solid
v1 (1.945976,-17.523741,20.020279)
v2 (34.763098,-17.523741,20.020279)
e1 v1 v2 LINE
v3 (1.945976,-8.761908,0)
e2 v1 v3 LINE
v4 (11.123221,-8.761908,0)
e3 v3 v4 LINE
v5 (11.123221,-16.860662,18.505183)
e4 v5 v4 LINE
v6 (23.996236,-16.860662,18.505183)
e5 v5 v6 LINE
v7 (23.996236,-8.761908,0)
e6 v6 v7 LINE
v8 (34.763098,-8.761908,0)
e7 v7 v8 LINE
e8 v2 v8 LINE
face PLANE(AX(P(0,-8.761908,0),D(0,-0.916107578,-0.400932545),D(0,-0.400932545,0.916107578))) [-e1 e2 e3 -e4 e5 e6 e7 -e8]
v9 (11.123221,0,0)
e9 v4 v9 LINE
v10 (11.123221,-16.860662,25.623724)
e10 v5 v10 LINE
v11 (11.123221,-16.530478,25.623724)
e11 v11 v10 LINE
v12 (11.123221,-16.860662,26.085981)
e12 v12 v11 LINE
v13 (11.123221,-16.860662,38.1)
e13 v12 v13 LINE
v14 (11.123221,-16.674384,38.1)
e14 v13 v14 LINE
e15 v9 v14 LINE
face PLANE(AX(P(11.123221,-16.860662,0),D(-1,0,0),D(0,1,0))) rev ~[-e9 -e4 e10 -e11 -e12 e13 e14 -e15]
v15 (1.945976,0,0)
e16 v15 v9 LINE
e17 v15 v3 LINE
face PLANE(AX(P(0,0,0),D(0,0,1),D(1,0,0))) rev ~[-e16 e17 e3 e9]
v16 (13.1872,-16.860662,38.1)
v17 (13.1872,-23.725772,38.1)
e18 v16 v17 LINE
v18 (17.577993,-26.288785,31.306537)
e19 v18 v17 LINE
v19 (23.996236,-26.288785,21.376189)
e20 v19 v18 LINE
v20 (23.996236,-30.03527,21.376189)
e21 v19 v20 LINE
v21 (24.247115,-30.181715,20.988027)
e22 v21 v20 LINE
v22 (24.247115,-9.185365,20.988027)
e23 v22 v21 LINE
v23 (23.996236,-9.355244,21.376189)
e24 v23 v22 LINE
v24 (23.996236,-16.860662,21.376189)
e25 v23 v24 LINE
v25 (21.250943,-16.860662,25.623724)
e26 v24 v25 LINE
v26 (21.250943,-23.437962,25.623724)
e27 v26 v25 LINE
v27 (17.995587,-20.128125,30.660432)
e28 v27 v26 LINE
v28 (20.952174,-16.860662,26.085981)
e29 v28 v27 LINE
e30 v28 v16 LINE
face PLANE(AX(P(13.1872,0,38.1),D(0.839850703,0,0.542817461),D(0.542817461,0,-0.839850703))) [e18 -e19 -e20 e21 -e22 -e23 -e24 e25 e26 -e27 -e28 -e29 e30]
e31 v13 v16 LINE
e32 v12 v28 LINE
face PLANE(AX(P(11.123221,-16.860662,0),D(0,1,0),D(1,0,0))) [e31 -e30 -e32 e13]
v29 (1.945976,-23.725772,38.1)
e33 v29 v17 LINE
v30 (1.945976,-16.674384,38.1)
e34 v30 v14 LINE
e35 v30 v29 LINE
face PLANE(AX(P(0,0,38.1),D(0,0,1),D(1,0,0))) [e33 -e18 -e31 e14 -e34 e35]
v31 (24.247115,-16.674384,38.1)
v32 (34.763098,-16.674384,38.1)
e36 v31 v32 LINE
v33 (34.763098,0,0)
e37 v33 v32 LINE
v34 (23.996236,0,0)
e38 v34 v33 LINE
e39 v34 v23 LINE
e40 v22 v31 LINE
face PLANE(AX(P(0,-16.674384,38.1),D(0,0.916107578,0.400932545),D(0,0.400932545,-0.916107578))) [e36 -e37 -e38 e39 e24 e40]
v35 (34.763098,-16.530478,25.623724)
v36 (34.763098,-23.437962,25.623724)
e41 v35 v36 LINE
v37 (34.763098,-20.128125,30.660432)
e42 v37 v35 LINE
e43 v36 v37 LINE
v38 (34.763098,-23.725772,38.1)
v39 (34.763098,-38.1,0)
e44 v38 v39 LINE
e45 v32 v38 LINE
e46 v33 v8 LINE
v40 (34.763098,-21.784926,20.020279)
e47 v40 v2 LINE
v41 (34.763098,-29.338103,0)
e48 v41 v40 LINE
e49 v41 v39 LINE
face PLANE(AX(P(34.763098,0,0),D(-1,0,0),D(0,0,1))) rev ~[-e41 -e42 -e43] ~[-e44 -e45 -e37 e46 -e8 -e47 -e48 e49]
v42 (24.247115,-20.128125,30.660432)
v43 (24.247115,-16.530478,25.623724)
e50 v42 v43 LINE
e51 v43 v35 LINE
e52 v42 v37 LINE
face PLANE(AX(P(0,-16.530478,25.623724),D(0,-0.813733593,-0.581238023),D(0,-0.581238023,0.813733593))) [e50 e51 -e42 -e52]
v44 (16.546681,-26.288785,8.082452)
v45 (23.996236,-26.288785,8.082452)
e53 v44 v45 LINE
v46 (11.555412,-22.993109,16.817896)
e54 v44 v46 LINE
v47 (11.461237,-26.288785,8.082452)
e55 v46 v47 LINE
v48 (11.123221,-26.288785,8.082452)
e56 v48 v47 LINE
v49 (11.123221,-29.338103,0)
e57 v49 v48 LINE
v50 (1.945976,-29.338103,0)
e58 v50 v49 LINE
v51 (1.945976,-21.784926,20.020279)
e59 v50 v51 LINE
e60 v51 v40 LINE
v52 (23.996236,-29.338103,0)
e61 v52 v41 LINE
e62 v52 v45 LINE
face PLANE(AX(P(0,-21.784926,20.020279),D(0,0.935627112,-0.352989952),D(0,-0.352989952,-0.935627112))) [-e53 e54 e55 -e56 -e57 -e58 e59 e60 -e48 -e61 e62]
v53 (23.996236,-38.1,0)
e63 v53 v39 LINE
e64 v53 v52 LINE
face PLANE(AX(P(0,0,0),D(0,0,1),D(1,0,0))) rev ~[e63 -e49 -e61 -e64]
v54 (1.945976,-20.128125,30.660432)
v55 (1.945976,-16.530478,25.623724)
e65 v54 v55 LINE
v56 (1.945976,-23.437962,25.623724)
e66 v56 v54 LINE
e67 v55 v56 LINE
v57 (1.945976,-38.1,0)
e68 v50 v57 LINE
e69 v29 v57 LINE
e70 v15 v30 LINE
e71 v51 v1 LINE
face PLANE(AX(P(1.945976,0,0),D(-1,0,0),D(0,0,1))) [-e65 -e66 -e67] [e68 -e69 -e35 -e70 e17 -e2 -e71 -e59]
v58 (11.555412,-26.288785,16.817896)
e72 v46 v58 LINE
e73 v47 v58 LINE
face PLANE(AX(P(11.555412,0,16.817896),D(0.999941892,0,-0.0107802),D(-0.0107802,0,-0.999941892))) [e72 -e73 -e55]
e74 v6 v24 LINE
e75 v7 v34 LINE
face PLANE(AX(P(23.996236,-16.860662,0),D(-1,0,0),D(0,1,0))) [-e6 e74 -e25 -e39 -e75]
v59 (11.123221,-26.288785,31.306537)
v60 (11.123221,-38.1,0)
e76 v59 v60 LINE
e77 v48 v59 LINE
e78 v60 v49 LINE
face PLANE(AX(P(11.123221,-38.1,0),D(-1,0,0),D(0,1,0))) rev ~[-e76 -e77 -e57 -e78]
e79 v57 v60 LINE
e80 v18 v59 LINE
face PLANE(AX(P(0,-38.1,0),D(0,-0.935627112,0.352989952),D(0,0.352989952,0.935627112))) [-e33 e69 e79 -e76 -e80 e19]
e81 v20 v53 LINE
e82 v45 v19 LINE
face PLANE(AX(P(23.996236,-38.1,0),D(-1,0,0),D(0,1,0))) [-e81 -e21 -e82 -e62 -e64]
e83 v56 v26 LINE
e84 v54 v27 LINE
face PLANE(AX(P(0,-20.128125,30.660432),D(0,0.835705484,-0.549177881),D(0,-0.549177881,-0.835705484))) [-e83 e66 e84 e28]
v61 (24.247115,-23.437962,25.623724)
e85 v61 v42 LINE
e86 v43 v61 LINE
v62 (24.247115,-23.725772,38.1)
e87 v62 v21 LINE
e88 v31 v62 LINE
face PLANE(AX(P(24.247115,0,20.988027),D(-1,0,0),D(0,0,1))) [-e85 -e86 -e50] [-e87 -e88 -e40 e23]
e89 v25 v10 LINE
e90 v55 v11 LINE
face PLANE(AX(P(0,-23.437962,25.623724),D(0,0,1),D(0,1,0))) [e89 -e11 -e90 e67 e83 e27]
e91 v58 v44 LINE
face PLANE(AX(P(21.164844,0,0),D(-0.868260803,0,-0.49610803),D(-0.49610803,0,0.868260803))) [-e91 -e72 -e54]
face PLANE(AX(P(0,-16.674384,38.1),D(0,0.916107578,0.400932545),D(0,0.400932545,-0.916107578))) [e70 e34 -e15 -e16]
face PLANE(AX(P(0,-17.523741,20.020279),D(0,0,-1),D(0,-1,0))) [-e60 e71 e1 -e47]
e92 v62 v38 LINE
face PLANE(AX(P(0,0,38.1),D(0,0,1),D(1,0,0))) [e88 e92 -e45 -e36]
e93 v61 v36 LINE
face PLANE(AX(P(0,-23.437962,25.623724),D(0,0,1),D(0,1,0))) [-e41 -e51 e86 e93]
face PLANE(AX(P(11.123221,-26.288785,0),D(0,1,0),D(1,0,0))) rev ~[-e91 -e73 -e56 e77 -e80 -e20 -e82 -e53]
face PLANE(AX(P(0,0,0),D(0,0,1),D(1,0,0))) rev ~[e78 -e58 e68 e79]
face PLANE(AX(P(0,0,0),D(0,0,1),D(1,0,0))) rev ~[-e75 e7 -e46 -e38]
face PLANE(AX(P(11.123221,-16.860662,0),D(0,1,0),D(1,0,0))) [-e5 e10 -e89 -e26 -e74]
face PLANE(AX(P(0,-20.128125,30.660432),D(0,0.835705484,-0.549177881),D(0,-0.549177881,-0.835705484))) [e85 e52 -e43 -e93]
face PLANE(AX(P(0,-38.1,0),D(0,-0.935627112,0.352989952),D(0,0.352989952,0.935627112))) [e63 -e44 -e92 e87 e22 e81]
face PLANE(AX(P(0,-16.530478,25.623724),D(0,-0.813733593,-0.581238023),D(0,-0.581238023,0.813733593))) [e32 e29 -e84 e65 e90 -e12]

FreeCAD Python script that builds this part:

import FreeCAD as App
import Part
import Sketcher

V = App.Vector
Q = App.Units.Quantity

doc = App.newDocument("Part")
params = doc.addObject("Spreadsheet::Sheet", "Params")
for row, (alias, value) in enumerate([
    ("sketch1_width", "1.5 in"),
    ("pad1_length", "1.5 in"),
    ("sketch2_height", "1.5 in"),
    ("pocket1_length", "1.5 in"),
    ("sketch3_height", "1.5 in"),
    ("pocket2_length", "1.5 in"),
    ("sketch4_height", "1.5 in"),
    ("pocket3_length", "1.5 in"),
], start=1):
    params.set(f"A{row}", alias)
    params.set(f"B{row}", "=" + value)
    params.setAlias(f"B{row}", alias)

body = doc.addObject("PartDesign::Body", "Body")

sketch1 = body.newObject("Sketcher::SketchObject", "Sketch")
sketch1.AttachmentSupport = (doc.getObject("XZ_Plane"), [""])
sketch1.MapMode = "FlatFace"
sketch1.addGeometry(Part.LineSegment(V(0, 38.1, 0), V(0, 0, 0)), False)
sketch1.addGeometry(Part.LineSegment(V(0, 0, 0), V(38.1, 0, 0)), False)
sketch1.addGeometry(Part.LineSegment(V(38.1, 0, 0), V(38.1, 38.1, 0)), False)
sketch1.addGeometry(Part.LineSegment(V(38.1, 38.1, 0), V(0, 38.1, 0)), False)
sketch1.addConstraint(Sketcher.Constraint("Coincident", 0, 2, 1, 1))
sketch1.addConstraint(Sketcher.Constraint("Coincident", 1, 2, 2, 1))
sketch1.addConstraint(Sketcher.Constraint("Coincident", 2, 2, 3, 1))
sketch1.addConstraint(Sketcher.Constraint("Coincident", 3, 2, 0, 1))
sketch1.addConstraint(Sketcher.Constraint("Vertical", 0))
sketch1.addConstraint(Sketcher.Constraint("Horizontal", 1))
sketch1.addConstraint(Sketcher.Constraint("Vertical", 2))
sketch1.addConstraint(Sketcher.Constraint("Horizontal", 3))
sketch1.addConstraint(Sketcher.Constraint("Coincident", 0, 2, -1, 1))
sketch1.addConstraint(Sketcher.Constraint("Equal", 3, 0))
sketch1.addConstraint(Sketcher.Constraint("DistanceX", 1, 1, 1, 2, Q("1.5 in")))
sketch1.setExpression("Constraints[10]", "Params.sketch1_width")
pad1 = body.newObject("PartDesign::Pad", "Pad")
pad1.Profile = sketch1
pad1.setExpression("Length", "Params.pad1_length")

sketch2 = body.newObject("Sketcher::SketchObject", "Sketch001")
sketch2.AttachmentSupport = (doc.getObject("YZ_Plane"), [""])
sketch2.MapMode = "FlatFace"
sketch2.addGeometry(Part.LineSegment(V(-38.1, 0, 0), V(-23.725772, 38.1, 0)), False)
sketch2.addGeometry(Part.LineSegment(V(-23.725772, 38.1, 0), V(-38.1, 38.1, 0)), False)
sketch2.addGeometry(Part.LineSegment(V(-38.1, 38.1, 0), V(-38.1, 0, 0)), False)
sketch2.addGeometry(Part.LineSegment(V(-29.338103, 0, 0), V(-8.761908, 0, 0)), False)
sketch2.addGeometry(Part.LineSegment(V(-8.761908, 0, 0), V(-17.523741, 20.020279, 0)), False)
sketch2.addGeometry(Part.LineSegment(V(-17.523741, 20.020279, 0), V(-21.784926, 20.020279, 0)), False)
sketch2.addGeometry(Part.LineSegment(V(-21.784926, 20.020279, 0), V(-29.338103, 0, 0)), False)
sketch2.addGeometry(Part.LineSegment(V(-16.674384, 38.1, 0), V(0, 0, 0)), False)
sketch2.addGeometry(Part.LineSegment(V(0, 0, 0), V(0, 38.1, 0)), False)
sketch2.addGeometry(Part.LineSegment(V(0, 38.1, 0), V(-16.674384, 38.1, 0)), False)
sketch2.addGeometry(Part.LineSegment(V(-23.437962, 25.623724, 0), V(-16.530478, 25.623724, 0)), False)
sketch2.addGeometry(Part.LineSegment(V(-16.530478, 25.623724, 0), V(-20.128125, 30.660432, 0)), False)
sketch2.addGeometry(Part.LineSegment(V(-20.128125, 30.660432, 0), V(-23.437962, 25.623724, 0)), False)
sketch2.addConstraint(Sketcher.Constraint("Coincident", 0, 2, 1, 1))
sketch2.addConstraint(Sketcher.Constraint("Coincident", 1, 2, 2, 1))
sketch2.addConstraint(Sketcher.Constraint("Coincident", 2, 2, 0, 1))
sketch2.addConstraint(Sketcher.Constraint("Coincident", 3, 2, 4, 1))
sketch2.addConstraint(Sketcher.Constraint("Coincident", 4, 2, 5, 1))
sketch2.addConstraint(Sketcher.Constraint("Coincident", 5, 2, 6, 1))
sketch2.addConstraint(Sketcher.Constraint("Coincident", 6, 2, 3, 1))
sketch2.addConstraint(Sketcher.Constraint("Coincident", 7, 2, 8, 1))
sketch2.addConstraint(Sketcher.Constraint("Coincident", 8, 2, 9, 1))
sketch2.addConstraint(Sketcher.Constraint("Coincident", 9, 2, 7, 1))
sketch2.addConstraint(Sketcher.Constraint("Coincident", 10, 2, 11, 1))
sketch2.addConstraint(Sketcher.Constraint("Coincident", 11, 2, 12, 1))
sketch2.addConstraint(Sketcher.Constraint("Coincident", 12, 2, 10, 1))
sketch2.addConstraint(Sketcher.Constraint("Horizontal", 1))
sketch2.addConstraint(Sketcher.Constraint("Vertical", 2))
sketch2.addConstraint(Sketcher.Constraint("Horizontal", 3))
sketch2.addConstraint(Sketcher.Constraint("Horizontal", 5))
sketch2.addConstraint(Sketcher.Constraint("Vertical", 8))
sketch2.addConstraint(Sketcher.Constraint("Horizontal", 9))
sketch2.addConstraint(Sketcher.Constraint("Horizontal", 10))
sketch2.addConstraint(Sketcher.Constraint("Coincident", 7, 2, -1, 1))
sketch2.addConstraint(Sketcher.Constraint("PointOnObject", 2, 2, -1))
sketch2.addConstraint(Sketcher.Constraint("PointOnObject", 3, 2, -1))
sketch2.addConstraint(Sketcher.Constraint("Parallel", 0, 6))
sketch2.addConstraint(Sketcher.Constraint("Parallel", 4, 7))
sketch2.addConstraint(Sketcher.Constraint("Horizontal", 1, 2, 8, 2))
sketch2.addConstraint(Sketcher.Constraint("DistanceY", 2, 2, 2, 1, Q("1.5 in")))
sketch2.addConstraint(Sketcher.Constraint("DistanceX", 1, 2, -1, 1, Q("1.5 in")))
sketch2.addConstraint(Sketcher.Constraint("DistanceY", -1, 1, 4, 2, Q("0.7882 in")))
sketch2.addConstraint(Sketcher.Constraint("DistanceX", 5, 2, 11, 2, Q("1.6568 mm")))
sketch2.addConstraint(Sketcher.Constraint("Distance", 0, Q("40.721351 mm")))
sketch2.addConstraint(Sketcher.Constraint("DistanceX", 3, 1, 3, 2, Q("20.576195 mm")))
sketch2.addConstraint(Sketcher.Constraint("DistanceX", 5, 2, 5, 1, Q("4.261185 mm")))
sketch2.addConstraint(Sketcher.Constraint("DistanceX", 10, 1, 10, 2, Q("6.907484 mm")))
sketch2.addConstraint(Sketcher.Constraint("DistanceX", 4, 2, -1, 1, Q("17.523741 mm")))
sketch2.addConstraint(Sketcher.Constraint("DistanceX", 10, 2, -1, 1, Q("16.530478 mm")))
sketch2.addConstraint(Sketcher.Constraint("DistanceY", -1, 1, 11, 2, Q("30.660432 mm")))
sketch2.addConstraint(Sketcher.Constraint("Distance", 11, Q("6.189628 mm")))
sketch2.setExpression("Constraints[26]", "Params.sketch2_height")
pocket1 = body.newObject("PartDesign::Pocket", "Pocket")
pocket1.Profile = sketch2
pocket1.setExpression("Length", "Params.pocket1_length")
pocket1.Reversed = True

sketch3 = body.newObject("Sketcher::SketchObject", "Sketch002")
sketch3.AttachmentSupport = (doc.getObject("XZ_Plane"), [""])
sketch3.MapMode = "FlatFace"
sketch3.addGeometry(Part.LineSegment(V(34.763098, 38.1, 0), V(34.763098, 0, 0)), False)
sketch3.addGeometry(Part.LineSegment(V(34.763098, 0, 0), V(38.1, 0, 0)), False)
sketch3.addGeometry(Part.LineSegment(V(38.1, 0, 0), V(38.1, 38.1, 0)), False)
sketch3.addGeometry(Part.LineSegment(V(38.1, 38.1, 0), V(34.763098, 38.1, 0)), False)
sketch3.addGeometry(Part.LineSegment(V(24.247115, 38.1, 0), V(13.1872, 38.1, 0)), False)
sketch3.addGeometry(Part.LineSegment(V(13.1872, 38.1, 0), V(24.247115, 20.988027, 0)), False)
sketch3.addGeometry(Part.LineSegment(V(24.247115, 20.988027, 0), V(24.247115, 38.1, 0)), False)
sketch3.addGeometry(Part.LineSegment(V(11.555412, 16.817896, 0), V(11.374101, 0, 0)), False)
sketch3.addGeometry(Part.LineSegment(V(11.374101, 0, 0), V(21.164844, 0, 0)), False)
sketch3.addGeometry(Part.LineSegment(V(21.164844, 0, 0), V(11.555412, 16.817896, 0)), False)
sketch3.addGeometry(Part.LineSegment(V(0, 38.1, 0), V(0, 0, 0)), False)
sketch3.addGeometry(Part.LineSegment(V(0, 0, 0), V(1.945976, 0, 0)), False)
sketch3.addGeometry(Part.LineSegment(V(1.945976, 0, 0), V(1.945976, 38.1, 0)), False)
sketch3.addGeometry(Part.LineSegment(V(1.945976, 38.1, 0), V(0, 38.1, 0)), False)
sketch3.addConstraint(Sketcher.Constraint("Coincident", 0, 2, 1, 1))
sketch3.addConstraint(Sketcher.Constraint("Coincident", 1, 2, 2, 1))
sketch3.addConstraint(Sketcher.Constraint("Coincident", 2, 2, 3, 1))
sketch3.addConstraint(Sketcher.Constraint("Coincident", 3, 2, 0, 1))
sketch3.addConstraint(Sketcher.Constraint("Coincident", 4, 2, 5, 1))
sketch3.addConstraint(Sketcher.Constraint("Coincident", 5, 2, 6, 1))
sketch3.addConstraint(Sketcher.Constraint("Coincident", 6, 2, 4, 1))
sketch3.addConstraint(Sketcher.Constraint("Coincident", 7, 2, 8, 1))
sketch3.addConstraint(Sketcher.Constraint("Coincident", 8, 2, 9, 1))
sketch3.addConstraint(Sketcher.Constraint("Coincident", 9, 2, 7, 1))
sketch3.addConstraint(Sketcher.Constraint("Coincident", 10, 2, 11, 1))
sketch3.addConstraint(Sketcher.Constraint("Coincident", 11, 2, 12, 1))
sketch3.addConstraint(Sketcher.Constraint("Coincident", 12, 2, 13, 1))
sketch3.addConstraint(Sketcher.Constraint("Coincident", 13, 2, 10, 1))
sketch3.addConstraint(Sketcher.Constraint("Vertical", 0))
sketch3.addConstraint(Sketcher.Constraint("Horizontal", 1))
sketch3.addConstraint(Sketcher.Constraint("Vertical", 2))
sketch3.addConstraint(Sketcher.Constraint("Horizontal", 3))
sketch3.addConstraint(Sketcher.Constraint("Horizontal", 4))
sketch3.addConstraint(Sketcher.Constraint("Vertical", 6))
sketch3.addConstraint(Sketcher.Constraint("Horizontal", 8))
sketch3.addConstraint(Sketcher.Constraint("Vertical", 10))
sketch3.addConstraint(Sketcher.Constraint("Horizontal", 11))
sketch3.addConstraint(Sketcher.Constraint("Vertical", 12))
sketch3.addConstraint(Sketcher.Constraint("Horizontal", 13))
sketch3.addConstraint(Sketcher.Constraint("Coincident", 10, 2, -1, 1))
sketch3.addConstraint(Sketcher.Constraint("PointOnObject", 0, 2, -1))
sketch3.addConstraint(Sketcher.Constraint("PointOnObject", 7, 2, -1))
sketch3.addConstraint(Sketcher.Constraint("Horizontal", 3, 2, 4, 2))
sketch3.addConstraint(Sketcher.Constraint("Horizontal", 6, 2, 12, 2))
sketch3.addConstraint(Sketcher.Constraint("DistanceY", 0, 2, 0, 1, Q("1.5 in")))
sketch3.addConstraint(Sketcher.Constraint("DistanceX", -1, 1, 1, 2, Q("1.5 in")))
sketch3.addConstraint(Sketcher.Constraint("DistanceX", -1, 1, 4, 2, Q("13.1872 mm")))
sketch3.addConstraint(Sketcher.Constraint("DistanceX", -1, 1, 7, 2, Q("11.374101 mm")))
sketch3.addConstraint(Sketcher.Constraint("Distance", 5, Q("20.375018 mm")))
sketch3.addConstraint(Sketcher.Constraint("DistanceX", 1, 1, 1, 2, Q("3.336902 mm")))
sketch3.addConstraint(Sketcher.Constraint("DistanceX", 4, 2, 4, 1, Q("11.059916 mm")))
sketch3.addConstraint(Sketcher.Constraint("DistanceX", 8, 1, 8, 2, Q("9.790743 mm")))
sketch3.addConstraint(Sketcher.Constraint("DistanceX", 11, 1, 11, 2, Q("1.945976 mm")))
sketch3.addConstraint(Sketcher.Constraint("DistanceX", -1, 1, 9, 2, Q("11.555412 mm")))
sketch3.addConstraint(Sketcher.Constraint("DistanceY", 9, 2, 5, 2, Q("4.170131 mm")))
sketch3.setExpression("Constraints[30]", "Params.sketch3_height")
pocket2 = body.newObject("PartDesign::Pocket", "Pocket001")
pocket2.Profile = sketch3
pocket2.setExpression("Length", "Params.pocket2_length")
pocket2.Reversed = True

sketch4 = body.newObject("Sketcher::SketchObject", "Sketch003")
sketch4.AttachmentSupport = (doc.getObject("XY_Plane"), [""])
sketch4.MapMode = "FlatFace"
sketch4.addGeometry(Part.LineSegment(V(0, 0, 0), V(0, -38.1, 0)), False)
sketch4.addGeometry(Part.LineSegment(V(0, -38.1, 0), V(1.931104, -38.1, 0)), False)
sketch4.addGeometry(Part.LineSegment(V(1.931104, -38.1, 0), V(1.931104, 0, 0)), False)
sketch4.addGeometry(Part.LineSegment(V(1.931104, 0, 0), V(0, 0, 0)), False)
sketch4.addGeometry(Part.LineSegment(V(11.123221, 0, 0), V(11.123221, -16.860662, 0)), False)
sketch4.addGeometry(Part.LineSegment(V(11.123221, -16.860662, 0), V(23.996236, -16.860662, 0)), False)
sketch4.addGeometry(Part.LineSegment(V(23.996236, -16.860662, 0), V(23.996236, 0, 0)), False)
sketch4.addGeometry(Part.LineSegment(V(23.996236, 0, 0), V(11.123221, 0, 0)), False)
sketch4.addGeometry(Part.LineSegment(V(11.123221, -26.288785, 0), V(11.123221, -38.1, 0)), False)
sketch4.addGeometry(Part.LineSegment(V(11.123221, -38.1, 0), V(23.996236, -38.1, 0)), False)
sketch4.addGeometry(Part.LineSegment(V(23.996236, -38.1, 0), V(23.996236, -26.288785, 0)), False)
sketch4.addGeometry(Part.LineSegment(V(23.996236, -26.288785, 0), V(11.123221, -26.288785, 0)), False)
sketch4.addGeometry(Part.LineSegment(V(34.92954, 0, 0), V(34.92954, -38.1, 0)), False)
sketch4.addGeometry(Part.LineSegment(V(34.92954, -38.1, 0), V(38.1, -38.1, 0)), False)
sketch4.addGeometry(Part.LineSegment(V(38.1, -38.1, 0), V(38.1, 0, 0)), False)
sketch4.addGeometry(Part.LineSegment(V(38.1, 0, 0), V(34.92954, 0, 0)), False)
sketch4.addConstraint(Sketcher.Constraint("Coincident", 0, 2, 1, 1))
sketch4.addConstraint(Sketcher.Constraint("Coincident", 1, 2, 2, 1))
sketch4.addConstraint(Sketcher.Constraint("Coincident", 2, 2, 3, 1))
sketch4.addConstraint(Sketcher.Constraint("Coincident", 3, 2, 0, 1))
sketch4.addConstraint(Sketcher.Constraint("Coincident", 4, 2, 5, 1))
sketch4.addConstraint(Sketcher.Constraint("Coincident", 5, 2, 6, 1))
sketch4.addConstraint(Sketcher.Constraint("Coincident", 6, 2, 7, 1))
sketch4.addConstraint(Sketcher.Constraint("Coincident", 7, 2, 4, 1))
sketch4.addConstraint(Sketcher.Constraint("Coincident", 8, 2, 9, 1))
sketch4.addConstraint(Sketcher.Constraint("Coincident", 9, 2, 10, 1))
sketch4.addConstraint(Sketcher.Constraint("Coincident", 10, 2, 11, 1))
sketch4.addConstraint(Sketcher.Constraint("Coincident", 11, 2, 8, 1))
sketch4.addConstraint(Sketcher.Constraint("Coincident", 12, 2, 13, 1))
sketch4.addConstraint(Sketcher.Constraint("Coincident", 13, 2, 14, 1))
sketch4.addConstraint(Sketcher.Constraint("Coincident", 14, 2, 15, 1))
sketch4.addConstraint(Sketcher.Constraint("Coincident", 15, 2, 12, 1))
sketch4.addConstraint(Sketcher.Constraint("Vertical", 0))
sketch4.addConstraint(Sketcher.Constraint("Horizontal", 1))
sketch4.addConstraint(Sketcher.Constraint("Vertical", 2))
sketch4.addConstraint(Sketcher.Constraint("Horizontal", 3))
sketch4.addConstraint(Sketcher.Constraint("Vertical", 4))
sketch4.addConstraint(Sketcher.Constraint("Horizontal", 5))
sketch4.addConstraint(Sketcher.Constraint("Vertical", 6))
sketch4.addConstraint(Sketcher.Constraint("Horizontal", 7))
sketch4.addConstraint(Sketcher.Constraint("Vertical", 8))
sketch4.addConstraint(Sketcher.Constraint("Horizontal", 9))
sketch4.addConstraint(Sketcher.Constraint("Vertical", 10))
sketch4.addConstraint(Sketcher.Constraint("Horizontal", 11))
sketch4.addConstraint(Sketcher.Constraint("Vertical", 12))
sketch4.addConstraint(Sketcher.Constraint("Horizontal", 13))
sketch4.addConstraint(Sketcher.Constraint("Vertical", 14))
sketch4.addConstraint(Sketcher.Constraint("Horizontal", 15))
sketch4.addConstraint(Sketcher.Constraint("Coincident", 3, 2, -1, 1))
sketch4.addConstraint(Sketcher.Constraint("PointOnObject", 6, 2, -1))
sketch4.addConstraint(Sketcher.Constraint("PointOnObject", 14, 2, -1))
sketch4.addConstraint(Sketcher.Constraint("Horizontal", 1, 2, 8, 2))
sketch4.addConstraint(Sketcher.Constraint("Horizontal", 9, 2, 12, 2))
sketch4.addConstraint(Sketcher.Constraint("Vertical", 7, 2, 8, 2))
sketch4.addConstraint(Sketcher.Constraint("Vertical", 6, 2, 9, 2))
sketch4.addConstraint(Sketcher.Constraint("DistanceY", 0, 2, 0, 1, Q("1.5 in")))
sketch4.addConstraint(Sketcher.Constraint("DistanceX", -1, 1, 13, 2, Q("1.5 in")))
sketch4.addConstraint(Sketcher.Constraint("DistanceX", 13, 1, 13, 2, Q("3.17046 mm")))
sketch4.addConstraint(Sketcher.Constraint("DistanceX", 1, 1, 1, 2, Q("1.931104 mm")))
sketch4.addConstraint(Sketcher.Constraint("DistanceX", 5, 1, 5, 2, Q("12.873014 mm")))
sketch4.addConstraint(Sketcher.Constraint("DistanceY", 4, 2, 4, 1, Q("16.860662 mm")))
sketch4.addConstraint(Sketcher.Constraint("DistanceY", 8, 2, 8, 1, Q("11.811215 mm")))
sketch4.addConstraint(Sketcher.Constraint("DistanceX", -1, 1, 4, 2, Q("11.123221 mm")))
sketch4.setExpression("Constraints[39]", "Params.sketch4_height")
pocket3 = body.newObject("PartDesign::Pocket", "Pocket002")
pocket3.Profile = sketch4
pocket3.setExpression("Length", "Params.pocket3_length")
pocket3.Reversed = True

doc.recompute()
